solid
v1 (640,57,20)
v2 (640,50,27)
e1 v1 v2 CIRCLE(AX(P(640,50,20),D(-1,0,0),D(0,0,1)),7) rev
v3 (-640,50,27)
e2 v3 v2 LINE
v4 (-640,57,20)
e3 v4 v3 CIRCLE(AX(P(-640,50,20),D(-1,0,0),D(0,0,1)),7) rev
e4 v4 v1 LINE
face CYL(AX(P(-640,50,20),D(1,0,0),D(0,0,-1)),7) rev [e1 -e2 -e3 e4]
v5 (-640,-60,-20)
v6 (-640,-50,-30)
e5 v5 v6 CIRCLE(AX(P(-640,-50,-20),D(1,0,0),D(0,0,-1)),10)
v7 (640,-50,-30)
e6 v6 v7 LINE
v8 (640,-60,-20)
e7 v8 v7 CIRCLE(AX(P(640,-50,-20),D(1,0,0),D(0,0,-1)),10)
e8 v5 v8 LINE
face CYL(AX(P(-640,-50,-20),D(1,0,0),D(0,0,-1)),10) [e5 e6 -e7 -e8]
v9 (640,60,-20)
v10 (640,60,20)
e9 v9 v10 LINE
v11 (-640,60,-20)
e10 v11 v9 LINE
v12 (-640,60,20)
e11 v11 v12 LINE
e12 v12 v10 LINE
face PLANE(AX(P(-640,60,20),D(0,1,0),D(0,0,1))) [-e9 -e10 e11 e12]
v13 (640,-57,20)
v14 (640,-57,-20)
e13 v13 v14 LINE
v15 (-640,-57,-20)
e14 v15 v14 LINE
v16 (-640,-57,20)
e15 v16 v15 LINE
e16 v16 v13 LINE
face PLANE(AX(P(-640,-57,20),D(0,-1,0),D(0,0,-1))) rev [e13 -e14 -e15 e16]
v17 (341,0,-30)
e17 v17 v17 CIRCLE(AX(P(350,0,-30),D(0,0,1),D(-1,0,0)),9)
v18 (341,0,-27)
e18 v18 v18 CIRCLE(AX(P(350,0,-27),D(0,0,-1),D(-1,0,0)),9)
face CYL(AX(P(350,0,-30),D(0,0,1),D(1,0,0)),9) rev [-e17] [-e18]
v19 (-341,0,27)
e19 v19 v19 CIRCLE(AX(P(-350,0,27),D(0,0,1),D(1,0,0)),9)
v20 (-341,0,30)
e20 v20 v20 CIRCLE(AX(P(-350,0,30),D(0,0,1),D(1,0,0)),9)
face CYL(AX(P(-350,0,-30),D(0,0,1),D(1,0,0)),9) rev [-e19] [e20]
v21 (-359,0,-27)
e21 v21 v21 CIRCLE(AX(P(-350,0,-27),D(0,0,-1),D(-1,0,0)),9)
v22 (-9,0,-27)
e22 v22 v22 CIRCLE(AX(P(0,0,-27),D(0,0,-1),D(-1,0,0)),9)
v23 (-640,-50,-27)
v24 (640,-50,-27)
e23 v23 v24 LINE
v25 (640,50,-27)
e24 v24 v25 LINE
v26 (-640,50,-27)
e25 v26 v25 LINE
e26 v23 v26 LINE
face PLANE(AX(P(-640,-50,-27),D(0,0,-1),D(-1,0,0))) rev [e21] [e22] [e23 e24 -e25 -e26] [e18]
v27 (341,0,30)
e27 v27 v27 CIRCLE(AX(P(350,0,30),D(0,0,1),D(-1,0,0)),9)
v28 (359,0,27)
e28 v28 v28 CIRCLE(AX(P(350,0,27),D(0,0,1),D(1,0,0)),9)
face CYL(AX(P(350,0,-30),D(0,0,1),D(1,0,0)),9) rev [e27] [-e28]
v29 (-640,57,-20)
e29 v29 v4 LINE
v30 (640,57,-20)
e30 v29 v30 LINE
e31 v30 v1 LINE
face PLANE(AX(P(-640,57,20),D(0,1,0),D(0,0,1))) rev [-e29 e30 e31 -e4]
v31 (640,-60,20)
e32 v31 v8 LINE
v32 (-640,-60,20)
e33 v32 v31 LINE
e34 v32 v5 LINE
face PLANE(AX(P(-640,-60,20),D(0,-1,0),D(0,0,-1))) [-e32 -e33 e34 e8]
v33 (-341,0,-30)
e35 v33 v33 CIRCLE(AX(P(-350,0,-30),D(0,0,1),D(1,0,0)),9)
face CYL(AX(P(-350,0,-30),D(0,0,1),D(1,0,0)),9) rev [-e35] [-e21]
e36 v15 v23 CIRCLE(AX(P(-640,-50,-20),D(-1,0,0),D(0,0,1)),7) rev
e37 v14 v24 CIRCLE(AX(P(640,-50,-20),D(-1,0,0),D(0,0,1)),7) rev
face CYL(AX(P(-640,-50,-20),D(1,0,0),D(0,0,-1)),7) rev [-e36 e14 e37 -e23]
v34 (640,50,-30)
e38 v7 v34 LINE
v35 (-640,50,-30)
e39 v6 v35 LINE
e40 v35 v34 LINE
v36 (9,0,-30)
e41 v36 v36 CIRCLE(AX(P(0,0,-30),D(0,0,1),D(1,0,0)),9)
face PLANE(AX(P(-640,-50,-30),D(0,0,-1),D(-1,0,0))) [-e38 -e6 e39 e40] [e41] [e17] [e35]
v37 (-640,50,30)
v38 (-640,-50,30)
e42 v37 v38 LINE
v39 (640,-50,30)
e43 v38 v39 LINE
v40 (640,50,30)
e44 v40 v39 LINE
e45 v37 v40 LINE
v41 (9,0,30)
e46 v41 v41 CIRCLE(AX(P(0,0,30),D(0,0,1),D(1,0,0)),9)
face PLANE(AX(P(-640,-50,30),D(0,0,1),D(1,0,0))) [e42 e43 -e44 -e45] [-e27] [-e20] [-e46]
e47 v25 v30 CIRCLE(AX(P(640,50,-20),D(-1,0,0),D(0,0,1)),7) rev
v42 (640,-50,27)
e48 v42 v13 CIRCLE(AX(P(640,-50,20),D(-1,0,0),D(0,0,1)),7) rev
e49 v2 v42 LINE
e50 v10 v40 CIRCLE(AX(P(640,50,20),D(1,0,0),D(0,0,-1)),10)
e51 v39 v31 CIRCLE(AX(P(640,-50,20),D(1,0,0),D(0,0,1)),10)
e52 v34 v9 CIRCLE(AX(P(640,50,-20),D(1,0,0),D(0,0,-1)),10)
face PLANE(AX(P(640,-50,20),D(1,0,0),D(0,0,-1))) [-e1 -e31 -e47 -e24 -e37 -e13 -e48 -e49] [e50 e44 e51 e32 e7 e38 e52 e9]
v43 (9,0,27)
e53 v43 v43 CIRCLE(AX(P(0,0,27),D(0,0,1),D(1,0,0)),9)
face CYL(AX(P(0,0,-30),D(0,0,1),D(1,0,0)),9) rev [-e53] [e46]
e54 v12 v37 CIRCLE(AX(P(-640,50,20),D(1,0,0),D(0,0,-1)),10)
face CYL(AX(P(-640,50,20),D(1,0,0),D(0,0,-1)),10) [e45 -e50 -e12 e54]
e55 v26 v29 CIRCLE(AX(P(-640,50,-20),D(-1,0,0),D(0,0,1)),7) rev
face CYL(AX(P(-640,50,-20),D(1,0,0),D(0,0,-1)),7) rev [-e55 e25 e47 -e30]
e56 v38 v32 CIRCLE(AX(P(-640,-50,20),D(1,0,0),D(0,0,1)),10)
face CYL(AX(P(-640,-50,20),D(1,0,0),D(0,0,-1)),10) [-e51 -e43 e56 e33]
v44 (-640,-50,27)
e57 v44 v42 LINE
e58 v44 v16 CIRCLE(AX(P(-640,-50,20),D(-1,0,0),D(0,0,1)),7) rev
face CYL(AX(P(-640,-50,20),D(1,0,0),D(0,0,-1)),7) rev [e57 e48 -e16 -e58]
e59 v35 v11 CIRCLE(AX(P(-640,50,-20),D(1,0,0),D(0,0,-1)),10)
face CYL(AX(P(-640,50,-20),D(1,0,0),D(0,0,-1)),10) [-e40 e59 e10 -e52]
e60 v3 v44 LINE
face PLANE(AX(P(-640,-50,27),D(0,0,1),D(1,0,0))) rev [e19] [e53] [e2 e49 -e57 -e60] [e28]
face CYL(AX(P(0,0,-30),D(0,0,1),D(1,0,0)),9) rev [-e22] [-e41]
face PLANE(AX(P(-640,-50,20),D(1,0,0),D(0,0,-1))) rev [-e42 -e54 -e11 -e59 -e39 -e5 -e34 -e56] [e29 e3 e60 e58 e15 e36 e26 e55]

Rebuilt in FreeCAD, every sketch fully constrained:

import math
import FreeCAD as App
import Part
import Sketcher

V = App.Vector

doc = App.newDocument("Part")
body = doc.addObject("PartDesign::Body", "Body")

# Sketch on YZ plane
sketch1 = body.newObject("Sketcher::SketchObject", "Sketch")
sketch1.AttachmentSupport = (doc.getObject("YZ_Plane"), [""])
sketch1.MapMode = "FlatFace"
sketch1.addGeometry(Part.LineSegment(V(50, 30, 0), V(-50, 30, 0)), False)
sketch1.addGeometry(Part.ArcOfCircle(Part.Circle(V(-50, 20, 0), V(0, 0, 1), 10), math.radians(90), math.radians(180)), False)
sketch1.addGeometry(Part.LineSegment(V(-60, 20, 0), V(-60, -20, 0)), False)
sketch1.addGeometry(Part.ArcOfCircle(Part.Circle(V(-50, -20, 0), V(0, 0, 1), 10), math.radians(180), math.radians(270)), False)
sketch1.addGeometry(Part.LineSegment(V(-50, -30, 0), V(50, -30, 0)), False)
sketch1.addGeometry(Part.ArcOfCircle(Part.Circle(V(50, -20, 0), V(0, 0, 1), 10), math.radians(-90), math.radians(0)), False)
sketch1.addGeometry(Part.LineSegment(V(60, -20, 0), V(60, 20, 0)), False)
sketch1.addGeometry(Part.ArcOfCircle(Part.Circle(V(50, 20, 0), V(0, 0, 1), 10), math.radians(0), math.radians(90)), False)
sketch1.addGeometry(Part.LineSegment(V(-50, 27, 0), V(50, 27, 0)), False)
sketch1.addGeometry(Part.ArcOfCircle(Part.Circle(V(50, 20, 0), V(0, 0, 1), 7), math.radians(0), math.radians(90)), False)
sketch1.addGeometry(Part.LineSegment(V(57, 20, 0), V(57, -20, 0)), False)
sketch1.addGeometry(Part.ArcOfCircle(Part.Circle(V(50, -20, 0), V(0, 0, 1), 7), math.radians(-90), math.radians(0)), False)
sketch1.addGeometry(Part.LineSegment(V(50, -27, 0), V(-50, -27, 0)), False)
sketch1.addGeometry(Part.ArcOfCircle(Part.Circle(V(-50, -20, 0), V(0, 0, 1), 7), math.radians(-180), math.radians(-90)), False)
sketch1.addGeometry(Part.LineSegment(V(-57, -20, 0), V(-57, 20, 0)), False)
sketch1.addGeometry(Part.ArcOfCircle(Part.Circle(V(-50, 20, 0), V(0, 0, 1), 7), math.radians(90), math.radians(180)), False)
sketch1.addConstraint(Sketcher.Constraint("Tangent", 0, 2, 1, 1))
sketch1.addConstraint(Sketcher.Constraint("Tangent", 1, 2, 2, 1))
sketch1.addConstraint(Sketcher.Constraint("Tangent", 2, 2, 3, 1))
sketch1.addConstraint(Sketcher.Constraint("Tangent", 3, 2, 4, 1))
sketch1.addConstraint(Sketcher.Constraint("Tangent", 4, 2, 5, 1))
sketch1.addConstraint(Sketcher.Constraint("Tangent", 5, 2, 6, 1))
sketch1.addConstraint(Sketcher.Constraint("Tangent", 6, 2, 7, 1))
sketch1.addConstraint(Sketcher.Constraint("Tangent", 7, 2, 0, 1))
sketch1.addConstraint(Sketcher.Constraint("Tangent", 8, 2, 9, 2))
sketch1.addConstraint(Sketcher.Constraint("Tangent", 9, 1, 10, 1))
sketch1.addConstraint(Sketcher.Constraint("Tangent", 10, 2, 11, 2))
sketch1.addConstraint(Sketcher.Constraint("Tangent", 11, 1, 12, 1))
sketch1.addConstraint(Sketcher.Constraint("Tangent", 12, 2, 13, 2))
sketch1.addConstraint(Sketcher.Constraint("Tangent", 13, 1, 14, 1))
sketch1.addConstraint(Sketcher.Constraint("Tangent", 14, 2, 15, 2))
sketch1.addConstraint(Sketcher.Constraint("Tangent", 15, 1, 8, 1))
sketch1.addConstraint(Sketcher.Constraint("Horizontal", 0))
sketch1.addConstraint(Sketcher.Constraint("Vertical", 2))
sketch1.addConstraint(Sketcher.Constraint("Horizontal", 4))
sketch1.addConstraint(Sketcher.Constraint("Vertical", 6))
sketch1.addConstraint(Sketcher.Constraint("Horizontal", 8))
sketch1.addConstraint(Sketcher.Constraint("Vertical", 10))
sketch1.addConstraint(Sketcher.Constraint("Horizontal", 12))
sketch1.addConstraint(Sketcher.Constraint("Vertical", 14))
sketch1.addConstraint(Sketcher.Constraint("Coincident", 9, 3, 7, 3))
sketch1.addConstraint(Sketcher.Constraint("Coincident", 11, 3, 5, 3))
sketch1.addConstraint(Sketcher.Constraint("Coincident", 13, 3, 3, 3))
sketch1.addConstraint(Sketcher.Constraint("Equal", 1, 3))
sketch1.addConstraint(Sketcher.Constraint("Equal", 3, 5))
sketch1.addConstraint(Sketcher.Constraint("Equal", 5, 7))
sketch1.addConstraint(Sketcher.Constraint("Equal", 13, 15))
sketch1.addConstraint(Sketcher.Constraint("Symmetric", 1, 3, 5, 3, -1, 1))
sketch1.addConstraint(Sketcher.Constraint("Radius", 1, 10.0))
sketch1.addConstraint(Sketcher.Constraint("Radius", 9, 7.0))
sketch1.addConstraint(Sketcher.Constraint("DistanceX", 0, 2, 0, 1, 100.0))
sketch1.addConstraint(Sketcher.Constraint("DistanceY", 2, 2, 2, 1, 40.0))
pad1 = body.newObject("PartDesign::Pad", "Pad")
pad1.Profile = sketch1
pad1.Type = "TwoLengths"
pad1.Length = 640
pad1.Length2 = 640

# Sketch on XY plane
sketch2 = body.newObject("Sketcher::SketchObject", "Sketch001")
sketch2.AttachmentSupport = (doc.getObject("XY_Plane"), [""])
sketch2.MapMode = "FlatFace"
sketch2.addGeometry(Part.Circle(V(0, 0, 0), V(0, 0, 1), 9), False)
sketch2.addGeometry(Part.Circle(V(-350, 0, 0), V(0, 0, 1), 9), False)
sketch2.addGeometry(Part.Circle(V(350, 0, 0), V(0, 0, 1), 9), False)
sketch2.addConstraint(Sketcher.Constraint("Coincident", 0, 3, -1, 1))
sketch2.addConstraint(Sketcher.Constraint("Equal", 0, 1))
sketch2.addConstraint(Sketcher.Constraint("Equal", 1, 2))
sketch2.addConstraint(Sketcher.Constraint("Symmetric", 1, 3, 2, 3, -1, 1))
sketch2.addConstraint(Sketcher.Constraint("PointOnObject", 1, 3, -1))
sketch2.addConstraint(Sketcher.Constraint("Diameter", 0, 18.0))
sketch2.addConstraint(Sketcher.Constraint("DistanceX", 1, 3, -1, 1, 350.0))
pocket1 = body.newObject("PartDesign::Pocket", "Pocket")
pocket1.Profile = sketch2
pocket1.Type = "ThroughAll"
pocket1.Midplane = True

doc.recompute()
